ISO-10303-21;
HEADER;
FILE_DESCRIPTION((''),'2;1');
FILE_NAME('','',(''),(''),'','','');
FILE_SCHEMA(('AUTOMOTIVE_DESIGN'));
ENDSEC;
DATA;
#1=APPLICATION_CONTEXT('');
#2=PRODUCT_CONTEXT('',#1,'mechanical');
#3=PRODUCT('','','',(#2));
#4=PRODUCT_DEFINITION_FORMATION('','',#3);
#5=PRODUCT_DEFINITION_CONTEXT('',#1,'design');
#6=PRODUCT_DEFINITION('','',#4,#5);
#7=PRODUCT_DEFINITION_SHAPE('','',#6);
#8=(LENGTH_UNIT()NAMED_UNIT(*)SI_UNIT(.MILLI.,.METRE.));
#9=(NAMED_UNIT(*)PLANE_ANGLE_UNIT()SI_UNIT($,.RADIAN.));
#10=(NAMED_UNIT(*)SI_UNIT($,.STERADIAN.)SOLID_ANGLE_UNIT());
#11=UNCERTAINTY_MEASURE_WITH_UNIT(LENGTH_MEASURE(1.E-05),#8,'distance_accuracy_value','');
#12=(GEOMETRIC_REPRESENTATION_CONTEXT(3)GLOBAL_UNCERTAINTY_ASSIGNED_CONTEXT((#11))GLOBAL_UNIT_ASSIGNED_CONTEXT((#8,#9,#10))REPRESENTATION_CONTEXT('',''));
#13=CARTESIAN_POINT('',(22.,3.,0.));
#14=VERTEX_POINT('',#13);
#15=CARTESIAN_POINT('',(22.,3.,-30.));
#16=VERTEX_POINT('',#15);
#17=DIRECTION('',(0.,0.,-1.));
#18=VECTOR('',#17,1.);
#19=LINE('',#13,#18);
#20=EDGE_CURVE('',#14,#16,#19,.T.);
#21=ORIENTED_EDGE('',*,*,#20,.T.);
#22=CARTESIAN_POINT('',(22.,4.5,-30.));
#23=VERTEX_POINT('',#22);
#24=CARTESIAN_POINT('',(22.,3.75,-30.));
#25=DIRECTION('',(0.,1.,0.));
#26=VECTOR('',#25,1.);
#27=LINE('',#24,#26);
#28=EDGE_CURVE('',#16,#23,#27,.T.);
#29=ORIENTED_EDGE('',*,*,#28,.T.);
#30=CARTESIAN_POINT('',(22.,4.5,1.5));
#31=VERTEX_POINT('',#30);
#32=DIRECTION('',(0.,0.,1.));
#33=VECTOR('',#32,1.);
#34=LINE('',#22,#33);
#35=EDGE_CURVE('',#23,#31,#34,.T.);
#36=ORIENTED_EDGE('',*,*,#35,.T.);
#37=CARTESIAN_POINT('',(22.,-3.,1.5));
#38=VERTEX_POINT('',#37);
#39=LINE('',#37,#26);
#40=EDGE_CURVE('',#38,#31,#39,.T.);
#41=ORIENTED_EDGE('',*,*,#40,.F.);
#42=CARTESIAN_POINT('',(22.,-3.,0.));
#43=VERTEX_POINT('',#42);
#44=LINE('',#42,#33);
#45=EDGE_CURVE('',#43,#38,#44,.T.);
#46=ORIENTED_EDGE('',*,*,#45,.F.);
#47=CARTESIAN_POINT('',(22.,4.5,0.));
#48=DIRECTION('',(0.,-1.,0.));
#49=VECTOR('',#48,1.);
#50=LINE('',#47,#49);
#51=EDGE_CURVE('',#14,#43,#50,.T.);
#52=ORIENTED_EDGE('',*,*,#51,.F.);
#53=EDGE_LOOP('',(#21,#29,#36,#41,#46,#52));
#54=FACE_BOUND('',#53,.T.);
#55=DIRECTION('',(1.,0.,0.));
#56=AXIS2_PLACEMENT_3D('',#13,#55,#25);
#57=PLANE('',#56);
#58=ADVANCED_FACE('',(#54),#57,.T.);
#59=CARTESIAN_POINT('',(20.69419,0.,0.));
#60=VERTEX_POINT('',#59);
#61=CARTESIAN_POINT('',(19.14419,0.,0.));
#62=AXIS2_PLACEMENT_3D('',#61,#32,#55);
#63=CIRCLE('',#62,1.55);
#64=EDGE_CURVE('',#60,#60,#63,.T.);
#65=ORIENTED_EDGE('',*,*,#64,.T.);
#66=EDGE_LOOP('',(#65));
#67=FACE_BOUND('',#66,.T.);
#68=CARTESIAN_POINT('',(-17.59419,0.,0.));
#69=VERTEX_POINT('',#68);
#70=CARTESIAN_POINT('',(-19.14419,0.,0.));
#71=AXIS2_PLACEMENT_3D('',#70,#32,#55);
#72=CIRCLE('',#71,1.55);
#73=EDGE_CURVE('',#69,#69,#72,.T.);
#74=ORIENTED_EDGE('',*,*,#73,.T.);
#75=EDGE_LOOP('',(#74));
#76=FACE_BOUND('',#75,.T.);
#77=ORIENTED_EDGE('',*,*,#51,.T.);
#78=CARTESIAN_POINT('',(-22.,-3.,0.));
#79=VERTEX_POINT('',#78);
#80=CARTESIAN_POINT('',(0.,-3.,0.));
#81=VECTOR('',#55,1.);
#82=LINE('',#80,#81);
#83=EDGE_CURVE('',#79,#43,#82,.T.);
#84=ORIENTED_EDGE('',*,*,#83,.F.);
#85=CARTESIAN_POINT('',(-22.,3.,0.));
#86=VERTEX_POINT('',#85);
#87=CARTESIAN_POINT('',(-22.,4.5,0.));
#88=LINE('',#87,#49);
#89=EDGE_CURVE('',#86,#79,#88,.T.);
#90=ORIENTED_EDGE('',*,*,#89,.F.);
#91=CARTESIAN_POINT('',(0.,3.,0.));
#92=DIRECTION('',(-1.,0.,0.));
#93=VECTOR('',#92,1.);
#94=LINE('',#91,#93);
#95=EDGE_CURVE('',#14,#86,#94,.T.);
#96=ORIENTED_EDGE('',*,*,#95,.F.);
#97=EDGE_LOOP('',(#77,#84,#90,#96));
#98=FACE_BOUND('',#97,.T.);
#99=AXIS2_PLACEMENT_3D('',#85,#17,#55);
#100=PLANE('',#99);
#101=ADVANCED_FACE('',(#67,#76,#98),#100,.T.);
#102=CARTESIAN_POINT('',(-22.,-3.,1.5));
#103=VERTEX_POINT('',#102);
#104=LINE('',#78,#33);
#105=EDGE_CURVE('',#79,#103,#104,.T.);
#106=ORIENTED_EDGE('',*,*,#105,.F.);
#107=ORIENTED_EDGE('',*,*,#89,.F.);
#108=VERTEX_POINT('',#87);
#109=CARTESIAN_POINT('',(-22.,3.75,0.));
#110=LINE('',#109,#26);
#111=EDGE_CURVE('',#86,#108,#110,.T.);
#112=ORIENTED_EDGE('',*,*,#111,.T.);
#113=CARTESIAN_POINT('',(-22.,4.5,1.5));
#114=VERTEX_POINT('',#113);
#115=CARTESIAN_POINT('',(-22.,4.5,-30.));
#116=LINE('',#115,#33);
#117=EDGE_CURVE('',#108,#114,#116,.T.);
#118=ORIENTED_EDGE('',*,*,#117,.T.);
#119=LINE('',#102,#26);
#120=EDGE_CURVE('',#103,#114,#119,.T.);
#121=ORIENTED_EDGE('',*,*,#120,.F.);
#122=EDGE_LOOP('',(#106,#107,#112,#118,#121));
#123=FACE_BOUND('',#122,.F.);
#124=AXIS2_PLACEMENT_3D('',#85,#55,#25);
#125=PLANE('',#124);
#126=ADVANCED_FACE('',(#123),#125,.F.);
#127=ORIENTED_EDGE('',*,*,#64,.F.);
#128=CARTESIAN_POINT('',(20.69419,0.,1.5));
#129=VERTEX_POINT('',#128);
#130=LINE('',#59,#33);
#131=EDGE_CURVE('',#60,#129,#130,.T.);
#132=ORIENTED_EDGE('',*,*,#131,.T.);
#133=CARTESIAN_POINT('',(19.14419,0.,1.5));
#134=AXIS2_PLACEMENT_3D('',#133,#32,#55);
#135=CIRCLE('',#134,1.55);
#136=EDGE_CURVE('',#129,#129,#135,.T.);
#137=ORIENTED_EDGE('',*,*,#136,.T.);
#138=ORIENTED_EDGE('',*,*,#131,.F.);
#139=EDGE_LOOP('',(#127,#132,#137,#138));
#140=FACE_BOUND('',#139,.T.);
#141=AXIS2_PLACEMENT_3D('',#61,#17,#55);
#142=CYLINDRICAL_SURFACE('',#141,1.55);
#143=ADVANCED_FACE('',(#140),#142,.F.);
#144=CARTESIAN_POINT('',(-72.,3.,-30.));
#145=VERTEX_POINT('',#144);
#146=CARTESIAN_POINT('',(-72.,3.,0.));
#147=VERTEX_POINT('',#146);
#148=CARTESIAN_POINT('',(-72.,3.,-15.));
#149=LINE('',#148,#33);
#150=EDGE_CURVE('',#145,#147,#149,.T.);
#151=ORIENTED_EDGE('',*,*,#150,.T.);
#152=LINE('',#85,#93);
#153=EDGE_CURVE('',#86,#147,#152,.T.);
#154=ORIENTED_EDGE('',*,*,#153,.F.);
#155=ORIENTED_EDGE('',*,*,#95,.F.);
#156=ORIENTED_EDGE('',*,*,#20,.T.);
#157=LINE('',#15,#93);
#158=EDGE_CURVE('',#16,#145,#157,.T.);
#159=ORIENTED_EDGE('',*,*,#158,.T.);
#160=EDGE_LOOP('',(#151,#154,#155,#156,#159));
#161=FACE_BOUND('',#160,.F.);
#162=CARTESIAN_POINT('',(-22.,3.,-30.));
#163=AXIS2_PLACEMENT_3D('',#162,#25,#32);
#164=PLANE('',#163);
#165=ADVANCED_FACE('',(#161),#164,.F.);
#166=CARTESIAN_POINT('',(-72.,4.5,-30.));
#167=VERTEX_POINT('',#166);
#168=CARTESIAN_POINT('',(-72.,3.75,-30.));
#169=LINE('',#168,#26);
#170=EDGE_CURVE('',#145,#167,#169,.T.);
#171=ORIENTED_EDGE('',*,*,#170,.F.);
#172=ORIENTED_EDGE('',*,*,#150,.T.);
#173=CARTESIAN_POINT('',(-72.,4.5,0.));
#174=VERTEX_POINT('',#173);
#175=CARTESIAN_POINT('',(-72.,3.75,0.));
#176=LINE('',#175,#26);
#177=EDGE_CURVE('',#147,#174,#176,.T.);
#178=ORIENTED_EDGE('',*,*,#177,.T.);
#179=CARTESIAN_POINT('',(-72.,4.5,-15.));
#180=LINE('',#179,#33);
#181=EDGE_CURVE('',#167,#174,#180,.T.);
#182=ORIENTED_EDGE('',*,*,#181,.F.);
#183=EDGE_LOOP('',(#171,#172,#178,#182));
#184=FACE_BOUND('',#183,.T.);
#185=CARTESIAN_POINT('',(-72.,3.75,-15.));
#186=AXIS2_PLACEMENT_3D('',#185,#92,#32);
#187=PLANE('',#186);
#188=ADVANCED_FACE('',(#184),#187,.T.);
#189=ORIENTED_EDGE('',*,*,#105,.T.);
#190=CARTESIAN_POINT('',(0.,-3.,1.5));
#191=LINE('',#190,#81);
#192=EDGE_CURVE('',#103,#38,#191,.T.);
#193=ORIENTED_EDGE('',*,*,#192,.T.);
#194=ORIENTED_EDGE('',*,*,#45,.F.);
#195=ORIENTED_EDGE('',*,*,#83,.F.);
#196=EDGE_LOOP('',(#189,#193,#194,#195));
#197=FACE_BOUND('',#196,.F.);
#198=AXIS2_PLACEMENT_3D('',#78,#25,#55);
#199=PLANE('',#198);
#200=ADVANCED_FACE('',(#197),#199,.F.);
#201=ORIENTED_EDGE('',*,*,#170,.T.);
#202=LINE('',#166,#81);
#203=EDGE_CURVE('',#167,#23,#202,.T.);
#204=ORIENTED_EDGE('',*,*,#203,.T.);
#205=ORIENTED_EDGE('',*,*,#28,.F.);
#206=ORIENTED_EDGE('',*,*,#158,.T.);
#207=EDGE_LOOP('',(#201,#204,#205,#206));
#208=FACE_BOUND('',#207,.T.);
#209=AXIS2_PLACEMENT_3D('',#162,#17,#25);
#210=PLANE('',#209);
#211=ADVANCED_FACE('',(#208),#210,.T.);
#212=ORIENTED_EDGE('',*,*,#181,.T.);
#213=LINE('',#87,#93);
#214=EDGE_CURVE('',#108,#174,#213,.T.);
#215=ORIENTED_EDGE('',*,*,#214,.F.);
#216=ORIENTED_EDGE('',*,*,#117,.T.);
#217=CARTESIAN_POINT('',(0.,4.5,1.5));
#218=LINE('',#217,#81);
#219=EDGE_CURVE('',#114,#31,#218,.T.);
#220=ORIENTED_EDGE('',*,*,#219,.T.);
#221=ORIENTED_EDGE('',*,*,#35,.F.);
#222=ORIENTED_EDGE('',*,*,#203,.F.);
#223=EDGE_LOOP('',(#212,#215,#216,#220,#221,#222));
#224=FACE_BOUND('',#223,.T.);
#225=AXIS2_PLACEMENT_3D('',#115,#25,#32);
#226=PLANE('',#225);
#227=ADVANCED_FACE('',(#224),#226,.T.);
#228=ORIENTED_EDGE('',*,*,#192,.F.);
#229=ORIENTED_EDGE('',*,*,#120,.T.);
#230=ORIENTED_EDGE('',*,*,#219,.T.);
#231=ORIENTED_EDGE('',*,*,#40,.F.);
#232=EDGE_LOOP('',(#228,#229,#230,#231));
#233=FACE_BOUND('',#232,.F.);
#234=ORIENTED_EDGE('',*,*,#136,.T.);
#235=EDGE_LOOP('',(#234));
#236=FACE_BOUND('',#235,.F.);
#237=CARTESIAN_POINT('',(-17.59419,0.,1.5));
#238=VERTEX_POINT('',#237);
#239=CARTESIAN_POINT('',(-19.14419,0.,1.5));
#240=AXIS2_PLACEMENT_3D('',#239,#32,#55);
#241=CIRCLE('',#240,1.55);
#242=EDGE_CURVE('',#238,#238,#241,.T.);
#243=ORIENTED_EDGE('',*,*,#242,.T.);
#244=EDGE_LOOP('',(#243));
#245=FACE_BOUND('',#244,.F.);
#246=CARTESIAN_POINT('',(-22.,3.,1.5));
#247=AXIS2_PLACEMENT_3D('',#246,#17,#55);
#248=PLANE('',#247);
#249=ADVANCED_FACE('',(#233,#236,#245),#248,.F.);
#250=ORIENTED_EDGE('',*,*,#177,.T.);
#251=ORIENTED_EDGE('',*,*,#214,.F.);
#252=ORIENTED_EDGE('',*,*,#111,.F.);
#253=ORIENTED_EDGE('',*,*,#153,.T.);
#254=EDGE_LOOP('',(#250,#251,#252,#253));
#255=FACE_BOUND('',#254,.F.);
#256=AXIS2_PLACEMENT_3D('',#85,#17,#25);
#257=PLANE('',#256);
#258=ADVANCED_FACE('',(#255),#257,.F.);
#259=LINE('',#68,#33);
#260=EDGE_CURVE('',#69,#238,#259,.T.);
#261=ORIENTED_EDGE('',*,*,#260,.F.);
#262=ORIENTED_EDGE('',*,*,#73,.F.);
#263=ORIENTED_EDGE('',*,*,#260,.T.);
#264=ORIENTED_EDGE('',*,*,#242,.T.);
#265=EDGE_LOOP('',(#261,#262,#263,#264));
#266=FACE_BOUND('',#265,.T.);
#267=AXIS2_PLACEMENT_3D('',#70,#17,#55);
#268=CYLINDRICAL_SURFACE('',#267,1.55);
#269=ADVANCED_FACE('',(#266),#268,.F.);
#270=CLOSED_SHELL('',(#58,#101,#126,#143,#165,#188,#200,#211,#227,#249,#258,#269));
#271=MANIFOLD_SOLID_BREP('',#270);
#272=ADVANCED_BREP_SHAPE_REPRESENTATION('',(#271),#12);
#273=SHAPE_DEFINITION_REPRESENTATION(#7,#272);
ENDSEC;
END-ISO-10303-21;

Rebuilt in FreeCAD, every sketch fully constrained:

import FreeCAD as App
import Part
import Sketcher

V = App.Vector
Q = App.Units.Quantity


def add_polygon(sketch, points):
    """Adds a closed chain of lines whose ends are joined by coincident constraints."""
    first, n = sketch.GeometryCount, len(points)
    for a, b in zip(points, points[1:] + points[:1]):
        sketch.addGeometry(Part.LineSegment(App.Vector(*a, 0), App.Vector(*b, 0)), False)
    for i in range(n):
        sketch.addConstraint(Sketcher.Constraint("Coincident", first + i, 2, first + (i + 1) % n, 1))

doc = App.newDocument("Part")
body = doc.addObject("PartDesign::Body", "Body")

sketch1 = body.newObject("Sketcher::SketchObject", "Sketch")
sketch1.AttachmentSupport = (doc.getObject("XY_Plane"), [""])
sketch1.MapMode = "FlatFace"
add_polygon(sketch1, [(-22, 3), (-22, -3), (22, -3), (22, 3)])
sketch1.addGeometry(Part.Circle(V(-19.14419, 0, 0), V(0, 0, 1), 1.55), False)
sketch1.addGeometry(Part.Circle(V(19.14419, 0, 0), V(0, 0, 1), 1.55), False)
sketch1.addConstraint(Sketcher.Constraint("Vertical", 0))
sketch1.addConstraint(Sketcher.Constraint("Horizontal", 1))
sketch1.addConstraint(Sketcher.Constraint("Vertical", 2))
sketch1.addConstraint(Sketcher.Constraint("Horizontal", 3))
sketch1.addConstraint(Sketcher.Constraint("Equal", 4, 5))
sketch1.addConstraint(Sketcher.Constraint("Symmetric", 4, 3, 5, 3, -1, 1))
sketch1.addConstraint(Sketcher.Constraint("Symmetric", 0, 2, 2, 2, -1, 1))
sketch1.addConstraint(Sketcher.Constraint("PointOnObject", 4, 3, -1))
sketch1.addConstraint(Sketcher.Constraint("Diameter", 4, Q("3.1 mm")))
sketch1.addConstraint(Sketcher.Constraint("DistanceX", 1, 1, 1, 2, Q("44 mm")))
sketch1.addConstraint(Sketcher.Constraint("DistanceY", 0, 2, 0, 1, Q("6 mm")))
sketch1.addConstraint(Sketcher.Constraint("DistanceX", 4, 3, -1, 1, Q("19.14419 mm")))
pad1 = body.newObject("PartDesign::Pad", "Pad")
pad1.Profile = sketch1
pad1.Length = 1.5

sketch2 = body.newObject("Sketcher::SketchObject", "Sketch001")
sketch2.AttachmentSupport = (doc.getObject("XZ_Plane"), [""])
sketch2.MapMode = "FlatFace"
sketch2.AttachmentOffset = App.Placement(V(0, 0, -3), App.Rotation())
add_polygon(sketch2, [(-22, 0), (-22, 1.5), (22, 1.5), (22, 0)])
sketch2.addConstraint(Sketcher.Constraint("Vertical", 0))
sketch2.addConstraint(Sketcher.Constraint("Horizontal", 1))
sketch2.addConstraint(Sketcher.Constraint("Vertical", 2))
sketch2.addConstraint(Sketcher.Constraint("Horizontal", 3))
sketch2.addConstraint(Sketcher.Constraint("Symmetric", 2, 2, 3, 2, -1, 1))
sketch2.addConstraint(Sketcher.Constraint("DistanceX", 1, 1, 1, 2, Q("44 mm")))
sketch2.addConstraint(Sketcher.Constraint("DistanceY", 0, 1, 0, 2, Q("1.5 mm")))
pad2 = body.newObject("PartDesign::Pad", "Pad001")
pad2.Profile = sketch2
pad2.Length = 1.5
pad2.Reversed = True

sketch3 = body.newObject("Sketcher::SketchObject", "Sketch002")
sketch3.AttachmentSupport = (doc.getObject("XY_Plane"), [""])
sketch3.MapMode = "FlatFace"
add_polygon(sketch3, [(22, 4.5), (22, 3), (-22, 3), (-22, 4.5)])
sketch3.addConstraint(Sketcher.Constraint("Vertical", 0))
sketch3.addConstraint(Sketcher.Constraint("Horizontal", 1))
sketch3.addConstraint(Sketcher.Constraint("Vertical", 2))
sketch3.addConstraint(Sketcher.Constraint("Horizontal", 3))
sketch3.addConstraint(Sketcher.Constraint("DistanceX", 1, 2, 1, 1, Q("44 mm")))
sketch3.addConstraint(Sketcher.Constraint("DistanceY", 0, 2, 0, 1, Q("1.5 mm")))
sketch3.addConstraint(Sketcher.Constraint("DistanceX", -1, 1, 0, 2, Q("22 mm")))
sketch3.addConstraint(Sketcher.Constraint("DistanceY", -1, 1, 0, 2, Q("3 mm")))
pad3 = body.newObject("PartDesign::Pad", "Pad002")
pad3.Profile = sketch3
pad3.Length = 30
pad3.Reversed = True

sketch4 = body.newObject("Sketcher::SketchObject", "Sketch003")
sketch4.AttachmentSupport = (doc.getObject("YZ_Plane"), [""])
sketch4.MapMode = "FlatFace"
sketch4.AttachmentOffset = App.Placement(V(0, 0, -22), App.Rotation())
add_polygon(sketch4, [(4.5, -30), (3, -30), (3, 0), (4.5, 0)])
sketch4.addConstraint(Sketcher.Constraint("Horizontal", 0))
sketch4.addConstraint(Sketcher.Constraint("Vertical", 1))
sketch4.addConstraint(Sketcher.Constraint("Horizontal", 2))
sketch4.addConstraint(Sketcher.Constraint("Vertical", 3))
sketch4.addConstraint(Sketcher.Constraint("PointOnObject", 1, 2, -1))
sketch4.addConstraint(Sketcher.Constraint("DistanceY", 1, 1, 1, 2, Q("30 mm")))
sketch4.addConstraint(Sketcher.Constraint("DistanceX", 0, 2, 0, 1, Q("1.5 mm")))
sketch4.addConstraint(Sketcher.Constraint("DistanceX", -1, 1, 0, 2, Q("3 mm")))
pad4 = body.newObject("PartDesign::Pad", "Pad003")
pad4.Profile = sketch4
pad4.Length = 50
pad4.Reversed = True

doc.recompute()
